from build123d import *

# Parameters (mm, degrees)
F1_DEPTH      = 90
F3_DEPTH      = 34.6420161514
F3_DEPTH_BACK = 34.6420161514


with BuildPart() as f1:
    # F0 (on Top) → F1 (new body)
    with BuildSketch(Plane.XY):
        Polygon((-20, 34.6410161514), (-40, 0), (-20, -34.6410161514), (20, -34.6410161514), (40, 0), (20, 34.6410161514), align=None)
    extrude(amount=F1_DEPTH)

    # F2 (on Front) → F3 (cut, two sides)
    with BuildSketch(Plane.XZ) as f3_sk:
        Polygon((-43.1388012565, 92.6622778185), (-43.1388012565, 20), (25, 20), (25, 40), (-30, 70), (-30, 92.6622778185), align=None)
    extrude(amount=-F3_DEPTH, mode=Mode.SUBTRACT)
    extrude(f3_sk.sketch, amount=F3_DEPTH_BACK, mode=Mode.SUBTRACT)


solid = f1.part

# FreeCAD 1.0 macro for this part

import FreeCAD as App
import Part
import Sketcher
Q = App.Units.Quantity


def add_polygon(sketch, points):
    """Adds a closed chain of lines whose ends are joined by coincident constraints."""
    first, n = sketch.GeometryCount, len(points)
    for a, b in zip(points, points[1:] + points[:1]):
        sketch.addGeometry(Part.LineSegment(App.Vector(*a, 0), App.Vector(*b, 0)), False)
    for i in range(n):
        sketch.addConstraint(Sketcher.Constraint("Coincident", first + i, 2, first + (i + 1) % n, 1))

doc = App.newDocument("Part")
params = doc.addObject("Spreadsheet::Sheet", "Params")
for row, (alias, value) in enumerate([
    ("sketch1_width", "40 mm"),
    ("sketch1_length", "40 mm"),
    ("pad1_length", "90 mm"),
    ("sketch2_height", "20 mm"),
], start=1):
    params.set(f"A{row}", alias)
    params.set(f"B{row}", "=" + value)
    params.setAlias(f"B{row}", alias)

body = doc.addObject("PartDesign::Body", "Body")

# Sketch on XY plane
sketch1 = body.newObject("Sketcher::SketchObject", "Sketch")
sketch1.AttachmentSupport = (doc.getObject("XY_Plane"), [""])
sketch1.MapMode = "FlatFace"
add_polygon(sketch1, [(-20, 35), (-40, 0), (-20, -35), (20, -35), (40, 0), (20, 35)])  # lines 0-5
sketch1.addConstraint(Sketcher.Constraint("Horizontal", 2))
sketch1.addConstraint(Sketcher.Constraint("Horizontal", 5))
sketch1.addConstraint(Sketcher.Constraint("Symmetric", 0, 2, 3, 2, -1, 1))
sketch1.addConstraint(Sketcher.Constraint("Symmetric", 1, 2, 4, 2, -1, 1))
sketch1.addConstraint(Sketcher.Constraint("PointOnObject", 0, 2, -1))
sketch1.addConstraint(Sketcher.Constraint("Parallel", 0, 3))
sketch1.addConstraint(Sketcher.Constraint("Vertical", 2, 2, 4, 2))
sketch1.addConstraint(Sketcher.Constraint("DistanceX", 2, 1, 2, 2, 40.0))
sketch1.addConstraint(Sketcher.Constraint("Angle", 0, Q("-120 deg")))
sketch1.addConstraint(Sketcher.Constraint("Distance", 0, 40.0))
sketch1.setExpression("Constraints[13]", "Params.sketch1_width")
sketch1.setExpression("Constraints[15]", "Params.sketch1_length")
pad1 = body.newObject("PartDesign::Pad", "Pad")
pad1.Profile = sketch1
pad1.setExpression("Length", "Params.pad1_length")

# Sketch on XZ plane
sketch2 = body.newObject("Sketcher::SketchObject", "Sketch001")
sketch2.AttachmentSupport = (doc.getObject("XZ_Plane"), [""])
sketch2.MapMode = "FlatFace"
add_polygon(sketch2, [(-43, 93), (-43, 20), (25, 20), (25, 40), (-30, 70), (-30, 93)])  # lines 0-5
sketch2.addConstraint(Sketcher.Constraint("Vertical", 0))
sketch2.addConstraint(Sketcher.Constraint("Horizontal", 1))
sketch2.addConstraint(Sketcher.Constraint("Vertical", 2))
sketch2.addConstraint(Sketcher.Constraint("Vertical", 4))
sketch2.addConstraint(Sketcher.Constraint("Horizontal", 5))
sketch2.addConstraint(Sketcher.Constraint("DistanceY", 2, 1, 2, 2, 20.0))
sketch2.addConstraint(Sketcher.Constraint("DistanceY", -1, 1, 0, 2, 20.0))
sketch2.addConstraint(Sketcher.Constraint("DistanceX", -1, 1, 1, 2, 25.0))
sketch2.addConstraint(Sketcher.Constraint("DistanceX", 3, 2, -1, 1, 30.0))
sketch2.addConstraint(Sketcher.Constraint("DistanceY", -1, 1, 3, 2, 70.0))
sketch2.addConstraint(Sketcher.Constraint("DistanceX", 1, 1, 1, 2, 68.138801))
sketch2.addConstraint(Sketcher.Constraint("DistanceY", 0, 2, 0, 1, 72.662278))
sketch2.setExpression("Constraints[11]", "Params.sketch2_height")
pocket1 = body.newObject("PartDesign::Pocket", "Pocket")
pocket1.Profile = sketch2
pocket1.Type = "ThroughAll"
pocket1.Midplane = True

doc.recompute()
